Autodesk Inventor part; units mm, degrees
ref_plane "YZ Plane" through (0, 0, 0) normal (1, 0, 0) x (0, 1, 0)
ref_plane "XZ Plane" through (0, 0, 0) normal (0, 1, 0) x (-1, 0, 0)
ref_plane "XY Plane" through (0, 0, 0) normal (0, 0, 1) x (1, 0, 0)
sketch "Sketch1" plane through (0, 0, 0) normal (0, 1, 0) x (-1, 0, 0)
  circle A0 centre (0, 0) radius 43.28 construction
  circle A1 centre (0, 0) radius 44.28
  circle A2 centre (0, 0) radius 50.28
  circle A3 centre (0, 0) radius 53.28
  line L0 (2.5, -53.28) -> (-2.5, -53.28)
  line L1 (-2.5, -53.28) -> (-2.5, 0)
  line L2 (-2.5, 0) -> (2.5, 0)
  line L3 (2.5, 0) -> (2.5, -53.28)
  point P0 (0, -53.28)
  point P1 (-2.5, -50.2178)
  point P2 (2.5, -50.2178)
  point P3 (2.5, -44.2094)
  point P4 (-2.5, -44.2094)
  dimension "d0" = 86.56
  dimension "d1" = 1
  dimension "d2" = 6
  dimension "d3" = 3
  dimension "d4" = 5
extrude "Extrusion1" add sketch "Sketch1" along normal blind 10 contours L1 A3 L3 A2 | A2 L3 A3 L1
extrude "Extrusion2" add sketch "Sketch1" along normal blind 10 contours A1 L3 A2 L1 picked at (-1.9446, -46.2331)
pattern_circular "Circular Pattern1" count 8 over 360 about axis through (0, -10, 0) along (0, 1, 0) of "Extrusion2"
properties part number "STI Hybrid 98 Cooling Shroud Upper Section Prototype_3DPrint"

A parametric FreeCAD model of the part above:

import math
import FreeCAD as App
import Part
import Sketcher
from FreeCAD import Vector
Q = App.Units.Quantity

doc = App.newDocument("Part")
body = doc.addObject("PartDesign::Body", "Body")

# Sketch on XZ plane
sketch1 = body.newObject("Sketcher::SketchObject", "Sketch")
sketch1.AttachmentSupport = (doc.getObject("XZ_Plane"), [""])
sketch1.MapMode = "FlatFace"
sketch1.addGeometry(Part.Circle(Vector(0, 0, 0), Vector(0, 0, 1), 53), False)
sketch1.addGeometry(Part.Circle(Vector(0, 0, 0), Vector(0, 0, 1), 50), False)
sketch1.addConstraint(Sketcher.Constraint("Coincident", 0, 3, -1, 1))
sketch1.addConstraint(Sketcher.Constraint("Coincident", 1, 3, -1, 1))
sketch1.addConstraint(Sketcher.Constraint("Diameter", 0, Q("106.56 mm")))
sketch1.addConstraint(Sketcher.Constraint("Diameter", 1, Q("100.56 mm")))
pad1 = body.newObject("PartDesign::Pad", "Pad")
pad1.Profile = sketch1
pad1.Length = 10
pad1.Reversed = True

# Sketch on XZ plane
sketch2 = body.newObject("Sketcher::SketchObject", "Sketch001")
sketch2.AttachmentSupport = (doc.getObject("XZ_Plane"), [""])
sketch2.MapMode = "FlatFace"
sketch2.addGeometry(Part.ArcOfCircle(Part.Circle(Vector(0, 0, 0), Vector(0, 0, 1), 44), math.radians(-93.24), math.radians(-86.76)), False)
sketch2.addGeometry(Part.LineSegment(Vector(2, -44, 0), Vector(2, -50, 0)), False)
sketch2.addGeometry(Part.ArcOfCircle(Part.Circle(Vector(0, 0, 0), Vector(0, 0, 1), 50), math.radians(-92.85), math.radians(-87.15)), False)
sketch2.addGeometry(Part.LineSegment(Vector(-2, -50, 0), Vector(-2, -44, 0)), False)
sketch2.addConstraint(Sketcher.Constraint("Coincident", 0, 2, 1, 1))
sketch2.addConstraint(Sketcher.Constraint("Coincident", 1, 2, 2, 2))
sketch2.addConstraint(Sketcher.Constraint("Coincident", 2, 1, 3, 1))
sketch2.addConstraint(Sketcher.Constraint("Coincident", 3, 2, 0, 1))
sketch2.addConstraint(Sketcher.Constraint("Vertical", 1))
sketch2.addConstraint(Sketcher.Constraint("Vertical", 3))
sketch2.addConstraint(Sketcher.Constraint("Coincident", 0, 3, -1, 1))
sketch2.addConstraint(Sketcher.Constraint("Coincident", 2, 3, -1, 1))
sketch2.addConstraint(Sketcher.Constraint("Horizontal", 1, 2, 2, 1))
sketch2.addConstraint(Sketcher.Constraint("DistanceX", 2, 1, 1, 2, Q("5 mm")))
sketch2.addConstraint(Sketcher.Constraint("Radius", 0, Q("44.28 mm")))
sketch2.addConstraint(Sketcher.Constraint("Radius", 2, Q("50.28 mm")))
pad2 = body.newObject("PartDesign::Pad", "Pad001")
pad2.Profile = sketch2
pad2.Length = 10
pad2.Reversed = True
doc.recompute()

polarpattern = body.newObject("PartDesign::PolarPattern", "PolarPattern")
polarpattern.Originals = [pad2]
polarpattern.Axis = (doc.getObject("Y_Axis"), [""])
polarpattern.Angle = 360
polarpattern.Occurrences = 8
body.Tip = polarpattern

doc.recompute()
